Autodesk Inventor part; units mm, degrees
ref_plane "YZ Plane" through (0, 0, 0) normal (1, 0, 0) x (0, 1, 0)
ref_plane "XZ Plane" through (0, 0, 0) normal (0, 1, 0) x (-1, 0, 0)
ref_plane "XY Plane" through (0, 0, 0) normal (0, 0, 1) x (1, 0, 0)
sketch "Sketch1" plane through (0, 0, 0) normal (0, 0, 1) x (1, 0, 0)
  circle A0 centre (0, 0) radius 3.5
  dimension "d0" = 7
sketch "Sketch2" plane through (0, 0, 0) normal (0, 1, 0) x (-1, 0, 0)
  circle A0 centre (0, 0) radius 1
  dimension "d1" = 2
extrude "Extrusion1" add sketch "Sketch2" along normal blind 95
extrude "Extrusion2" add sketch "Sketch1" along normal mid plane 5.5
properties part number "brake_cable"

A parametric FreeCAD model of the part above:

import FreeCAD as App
import Part
import Sketcher
from FreeCAD import Vector

doc = App.newDocument("Part")
body = doc.addObject("PartDesign::Body", "Body")

# Sketch on XZ plane
sketch1 = doc.addObject("Sketcher::SketchObject", "Sketch")
body.addObject(sketch1)
sketch1.AttachmentSupport = (doc.XZ_Plane, [""])
sketch1.MapMode = "FlatFace"
sketch1.addGeometry(Part.Circle(Vector(0, 0, 0), Vector(0, 0, 1), 1), False)
sketch1.addConstraint([
    Sketcher.Constraint("Coincident", 0, 3, -1, 1),
    Sketcher.Constraint("Diameter", 0, 2.0),
])
pad1 = doc.addObject("PartDesign::Pad", "Pad")
body.addObject(pad1)
pad1.Profile = sketch1
pad1.Length = 95
pad1.Reversed = True

# Sketch on XY plane
sketch2 = doc.addObject("Sketcher::SketchObject", "Sketch001")
body.addObject(sketch2)
sketch2.AttachmentSupport = (doc.XY_Plane, [""])
sketch2.MapMode = "FlatFace"
sketch2.addGeometry(Part.Circle(Vector(0, 0, 0), Vector(0, 0, 1), 3.5), False)
sketch2.addConstraint([
    Sketcher.Constraint("Coincident", 0, 3, -1, 1),
    Sketcher.Constraint("Diameter", 0, 7.0),
])
pad2 = doc.addObject("PartDesign::Pad", "Pad001")
body.addObject(pad2)
pad2.Profile = sketch2
pad2.Length = 5.5
pad2.Midplane = True

doc.recompute()
